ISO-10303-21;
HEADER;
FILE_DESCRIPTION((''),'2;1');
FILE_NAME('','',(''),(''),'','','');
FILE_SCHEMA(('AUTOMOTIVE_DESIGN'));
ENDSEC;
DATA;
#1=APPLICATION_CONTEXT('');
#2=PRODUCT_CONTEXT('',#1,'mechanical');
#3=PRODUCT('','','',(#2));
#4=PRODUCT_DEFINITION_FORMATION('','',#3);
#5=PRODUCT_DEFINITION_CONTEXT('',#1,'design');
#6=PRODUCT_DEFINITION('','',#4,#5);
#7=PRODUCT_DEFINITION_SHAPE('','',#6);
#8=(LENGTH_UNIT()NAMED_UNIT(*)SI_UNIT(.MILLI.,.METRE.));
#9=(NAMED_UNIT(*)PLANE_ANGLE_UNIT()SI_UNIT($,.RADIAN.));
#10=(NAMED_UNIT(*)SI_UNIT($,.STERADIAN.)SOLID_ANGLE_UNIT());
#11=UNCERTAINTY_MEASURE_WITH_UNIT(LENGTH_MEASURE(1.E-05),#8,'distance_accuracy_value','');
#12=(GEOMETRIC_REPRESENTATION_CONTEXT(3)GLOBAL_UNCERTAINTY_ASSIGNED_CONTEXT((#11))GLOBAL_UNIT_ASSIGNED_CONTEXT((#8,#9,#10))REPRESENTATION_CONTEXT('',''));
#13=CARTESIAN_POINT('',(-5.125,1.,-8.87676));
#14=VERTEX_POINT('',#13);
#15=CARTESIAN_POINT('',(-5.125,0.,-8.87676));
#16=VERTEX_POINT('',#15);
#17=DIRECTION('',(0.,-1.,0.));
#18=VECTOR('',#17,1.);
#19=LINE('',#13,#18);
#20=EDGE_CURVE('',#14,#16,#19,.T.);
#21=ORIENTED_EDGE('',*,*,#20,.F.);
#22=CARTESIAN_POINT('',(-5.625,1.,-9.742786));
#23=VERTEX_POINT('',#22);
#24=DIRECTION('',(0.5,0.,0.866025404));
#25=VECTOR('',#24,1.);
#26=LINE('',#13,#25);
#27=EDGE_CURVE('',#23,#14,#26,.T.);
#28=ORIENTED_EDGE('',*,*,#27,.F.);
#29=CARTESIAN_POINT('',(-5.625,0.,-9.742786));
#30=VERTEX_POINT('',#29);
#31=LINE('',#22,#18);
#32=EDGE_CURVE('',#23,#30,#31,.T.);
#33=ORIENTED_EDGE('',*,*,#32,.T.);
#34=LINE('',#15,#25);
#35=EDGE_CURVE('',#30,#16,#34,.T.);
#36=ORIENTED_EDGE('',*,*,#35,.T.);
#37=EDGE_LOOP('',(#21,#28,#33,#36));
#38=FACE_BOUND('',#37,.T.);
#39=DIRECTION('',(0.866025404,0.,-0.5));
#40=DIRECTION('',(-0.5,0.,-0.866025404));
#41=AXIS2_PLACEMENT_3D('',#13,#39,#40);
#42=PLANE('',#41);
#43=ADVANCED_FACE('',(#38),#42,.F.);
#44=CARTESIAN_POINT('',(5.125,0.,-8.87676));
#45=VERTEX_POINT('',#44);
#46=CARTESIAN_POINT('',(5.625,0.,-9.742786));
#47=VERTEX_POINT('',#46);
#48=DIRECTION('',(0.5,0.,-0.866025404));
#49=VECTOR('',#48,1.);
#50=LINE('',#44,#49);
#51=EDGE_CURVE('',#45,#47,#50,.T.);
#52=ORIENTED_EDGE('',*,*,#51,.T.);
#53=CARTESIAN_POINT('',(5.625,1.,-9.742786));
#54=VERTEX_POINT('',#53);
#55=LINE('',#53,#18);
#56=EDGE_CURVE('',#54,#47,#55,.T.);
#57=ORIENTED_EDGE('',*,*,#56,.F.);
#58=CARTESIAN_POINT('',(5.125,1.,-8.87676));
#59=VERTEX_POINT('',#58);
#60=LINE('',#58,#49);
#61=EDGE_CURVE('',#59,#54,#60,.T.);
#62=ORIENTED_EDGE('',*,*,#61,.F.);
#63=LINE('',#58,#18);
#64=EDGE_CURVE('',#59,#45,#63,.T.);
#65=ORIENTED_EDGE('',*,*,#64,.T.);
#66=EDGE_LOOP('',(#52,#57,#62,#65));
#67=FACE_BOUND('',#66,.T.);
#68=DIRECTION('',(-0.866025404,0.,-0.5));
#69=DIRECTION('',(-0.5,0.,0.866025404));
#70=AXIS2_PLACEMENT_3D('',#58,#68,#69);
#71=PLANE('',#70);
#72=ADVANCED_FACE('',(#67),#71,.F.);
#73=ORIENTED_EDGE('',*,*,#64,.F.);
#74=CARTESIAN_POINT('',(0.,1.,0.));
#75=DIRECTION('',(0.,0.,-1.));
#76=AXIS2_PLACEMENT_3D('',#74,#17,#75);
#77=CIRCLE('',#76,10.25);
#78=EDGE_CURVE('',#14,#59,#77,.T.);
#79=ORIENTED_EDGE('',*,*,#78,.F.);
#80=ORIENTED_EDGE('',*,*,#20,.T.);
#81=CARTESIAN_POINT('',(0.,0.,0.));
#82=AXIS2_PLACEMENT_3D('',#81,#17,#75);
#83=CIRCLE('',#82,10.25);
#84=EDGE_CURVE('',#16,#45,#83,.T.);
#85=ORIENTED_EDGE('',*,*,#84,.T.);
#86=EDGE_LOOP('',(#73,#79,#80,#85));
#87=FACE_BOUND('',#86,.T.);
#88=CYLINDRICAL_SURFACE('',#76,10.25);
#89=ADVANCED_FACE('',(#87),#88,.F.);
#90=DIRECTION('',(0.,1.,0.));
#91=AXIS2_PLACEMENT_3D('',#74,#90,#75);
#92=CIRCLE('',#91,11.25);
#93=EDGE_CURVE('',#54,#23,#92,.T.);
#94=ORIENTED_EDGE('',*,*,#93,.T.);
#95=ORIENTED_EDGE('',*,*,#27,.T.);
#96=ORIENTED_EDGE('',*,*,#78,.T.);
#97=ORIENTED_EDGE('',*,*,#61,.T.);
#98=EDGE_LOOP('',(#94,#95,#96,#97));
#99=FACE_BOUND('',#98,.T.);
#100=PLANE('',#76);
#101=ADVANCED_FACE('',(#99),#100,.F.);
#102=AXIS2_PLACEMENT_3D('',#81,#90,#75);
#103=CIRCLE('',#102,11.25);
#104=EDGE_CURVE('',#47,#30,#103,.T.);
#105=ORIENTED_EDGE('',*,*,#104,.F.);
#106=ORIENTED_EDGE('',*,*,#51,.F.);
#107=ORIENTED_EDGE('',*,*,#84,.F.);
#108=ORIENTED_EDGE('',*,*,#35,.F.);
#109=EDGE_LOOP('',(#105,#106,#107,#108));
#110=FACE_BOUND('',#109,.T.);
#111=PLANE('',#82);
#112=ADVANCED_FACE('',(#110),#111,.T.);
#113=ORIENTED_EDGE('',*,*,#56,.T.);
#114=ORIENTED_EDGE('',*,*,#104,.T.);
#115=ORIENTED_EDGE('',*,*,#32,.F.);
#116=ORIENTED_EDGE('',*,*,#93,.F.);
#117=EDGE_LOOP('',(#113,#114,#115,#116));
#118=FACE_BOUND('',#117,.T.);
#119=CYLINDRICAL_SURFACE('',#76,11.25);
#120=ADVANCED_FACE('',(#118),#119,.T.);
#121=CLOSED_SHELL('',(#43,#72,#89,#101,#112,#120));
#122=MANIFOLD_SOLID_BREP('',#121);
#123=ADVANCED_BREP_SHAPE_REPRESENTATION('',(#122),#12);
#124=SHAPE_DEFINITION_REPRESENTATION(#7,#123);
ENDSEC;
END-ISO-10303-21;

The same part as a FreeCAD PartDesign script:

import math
import FreeCAD as App
import Part
import Sketcher
from FreeCAD import Vector
Q = App.Units.Quantity

doc = App.newDocument("Part")
body = doc.addObject("PartDesign::Body", "Body")

sketch1 = body.newObject("Sketcher::SketchObject", "Sketch")
sketch1.AttachmentSupport = (doc.getObject("XZ_Plane"), [""])
sketch1.MapMode = "FlatFace"
sketch1.addGeometry(Part.LineSegment(Vector(5.1, -8.9, 0), Vector(5.6, -9.7, 0)), False)
sketch1.addGeometry(Part.ArcOfCircle(Part.Circle(Vector(0, 0, 0), Vector(0, 0, 1), 11.3), math.radians(-120), math.radians(-60)), False)
sketch1.addGeometry(Part.LineSegment(Vector(-5.6, -9.7, 0), Vector(-5.1, -8.9, 0)), False)
sketch1.addGeometry(Part.ArcOfCircle(Part.Circle(Vector(0, 0, 0), Vector(0, 0, 1), 10.3), math.radians(-120), math.radians(-60)), False)
sketch1.addConstraint(Sketcher.Constraint("Coincident", 0, 2, 1, 2))
sketch1.addConstraint(Sketcher.Constraint("Coincident", 1, 1, 2, 1))
sketch1.addConstraint(Sketcher.Constraint("Coincident", 2, 2, 3, 1))
sketch1.addConstraint(Sketcher.Constraint("Coincident", 3, 2, 0, 1))
sketch1.addConstraint(Sketcher.Constraint("Coincident", 1, 3, -1, 1))
sketch1.addConstraint(Sketcher.Constraint("Coincident", 3, 3, -1, 1))
sketch1.addConstraint(Sketcher.Constraint("Horizontal", 0, 2, 1, 1))
sketch1.addConstraint(Sketcher.Constraint("Horizontal", 2, 2, 3, 2))
sketch1.addConstraint(Sketcher.Constraint("Angle", 0, Q("-60 deg")))
sketch1.addConstraint(Sketcher.Constraint("Radius", 1, 11.25))
sketch1.addConstraint(Sketcher.Constraint("Radius", 3, 10.25))
sketch1.addConstraint(Sketcher.Constraint("DistanceX", 1, 1, 0, 2, 11.25))
pad1 = body.newObject("PartDesign::Pad", "Pad")
pad1.Profile = sketch1
pad1.Length = 1
pad1.Reversed = True

doc.recompute()
